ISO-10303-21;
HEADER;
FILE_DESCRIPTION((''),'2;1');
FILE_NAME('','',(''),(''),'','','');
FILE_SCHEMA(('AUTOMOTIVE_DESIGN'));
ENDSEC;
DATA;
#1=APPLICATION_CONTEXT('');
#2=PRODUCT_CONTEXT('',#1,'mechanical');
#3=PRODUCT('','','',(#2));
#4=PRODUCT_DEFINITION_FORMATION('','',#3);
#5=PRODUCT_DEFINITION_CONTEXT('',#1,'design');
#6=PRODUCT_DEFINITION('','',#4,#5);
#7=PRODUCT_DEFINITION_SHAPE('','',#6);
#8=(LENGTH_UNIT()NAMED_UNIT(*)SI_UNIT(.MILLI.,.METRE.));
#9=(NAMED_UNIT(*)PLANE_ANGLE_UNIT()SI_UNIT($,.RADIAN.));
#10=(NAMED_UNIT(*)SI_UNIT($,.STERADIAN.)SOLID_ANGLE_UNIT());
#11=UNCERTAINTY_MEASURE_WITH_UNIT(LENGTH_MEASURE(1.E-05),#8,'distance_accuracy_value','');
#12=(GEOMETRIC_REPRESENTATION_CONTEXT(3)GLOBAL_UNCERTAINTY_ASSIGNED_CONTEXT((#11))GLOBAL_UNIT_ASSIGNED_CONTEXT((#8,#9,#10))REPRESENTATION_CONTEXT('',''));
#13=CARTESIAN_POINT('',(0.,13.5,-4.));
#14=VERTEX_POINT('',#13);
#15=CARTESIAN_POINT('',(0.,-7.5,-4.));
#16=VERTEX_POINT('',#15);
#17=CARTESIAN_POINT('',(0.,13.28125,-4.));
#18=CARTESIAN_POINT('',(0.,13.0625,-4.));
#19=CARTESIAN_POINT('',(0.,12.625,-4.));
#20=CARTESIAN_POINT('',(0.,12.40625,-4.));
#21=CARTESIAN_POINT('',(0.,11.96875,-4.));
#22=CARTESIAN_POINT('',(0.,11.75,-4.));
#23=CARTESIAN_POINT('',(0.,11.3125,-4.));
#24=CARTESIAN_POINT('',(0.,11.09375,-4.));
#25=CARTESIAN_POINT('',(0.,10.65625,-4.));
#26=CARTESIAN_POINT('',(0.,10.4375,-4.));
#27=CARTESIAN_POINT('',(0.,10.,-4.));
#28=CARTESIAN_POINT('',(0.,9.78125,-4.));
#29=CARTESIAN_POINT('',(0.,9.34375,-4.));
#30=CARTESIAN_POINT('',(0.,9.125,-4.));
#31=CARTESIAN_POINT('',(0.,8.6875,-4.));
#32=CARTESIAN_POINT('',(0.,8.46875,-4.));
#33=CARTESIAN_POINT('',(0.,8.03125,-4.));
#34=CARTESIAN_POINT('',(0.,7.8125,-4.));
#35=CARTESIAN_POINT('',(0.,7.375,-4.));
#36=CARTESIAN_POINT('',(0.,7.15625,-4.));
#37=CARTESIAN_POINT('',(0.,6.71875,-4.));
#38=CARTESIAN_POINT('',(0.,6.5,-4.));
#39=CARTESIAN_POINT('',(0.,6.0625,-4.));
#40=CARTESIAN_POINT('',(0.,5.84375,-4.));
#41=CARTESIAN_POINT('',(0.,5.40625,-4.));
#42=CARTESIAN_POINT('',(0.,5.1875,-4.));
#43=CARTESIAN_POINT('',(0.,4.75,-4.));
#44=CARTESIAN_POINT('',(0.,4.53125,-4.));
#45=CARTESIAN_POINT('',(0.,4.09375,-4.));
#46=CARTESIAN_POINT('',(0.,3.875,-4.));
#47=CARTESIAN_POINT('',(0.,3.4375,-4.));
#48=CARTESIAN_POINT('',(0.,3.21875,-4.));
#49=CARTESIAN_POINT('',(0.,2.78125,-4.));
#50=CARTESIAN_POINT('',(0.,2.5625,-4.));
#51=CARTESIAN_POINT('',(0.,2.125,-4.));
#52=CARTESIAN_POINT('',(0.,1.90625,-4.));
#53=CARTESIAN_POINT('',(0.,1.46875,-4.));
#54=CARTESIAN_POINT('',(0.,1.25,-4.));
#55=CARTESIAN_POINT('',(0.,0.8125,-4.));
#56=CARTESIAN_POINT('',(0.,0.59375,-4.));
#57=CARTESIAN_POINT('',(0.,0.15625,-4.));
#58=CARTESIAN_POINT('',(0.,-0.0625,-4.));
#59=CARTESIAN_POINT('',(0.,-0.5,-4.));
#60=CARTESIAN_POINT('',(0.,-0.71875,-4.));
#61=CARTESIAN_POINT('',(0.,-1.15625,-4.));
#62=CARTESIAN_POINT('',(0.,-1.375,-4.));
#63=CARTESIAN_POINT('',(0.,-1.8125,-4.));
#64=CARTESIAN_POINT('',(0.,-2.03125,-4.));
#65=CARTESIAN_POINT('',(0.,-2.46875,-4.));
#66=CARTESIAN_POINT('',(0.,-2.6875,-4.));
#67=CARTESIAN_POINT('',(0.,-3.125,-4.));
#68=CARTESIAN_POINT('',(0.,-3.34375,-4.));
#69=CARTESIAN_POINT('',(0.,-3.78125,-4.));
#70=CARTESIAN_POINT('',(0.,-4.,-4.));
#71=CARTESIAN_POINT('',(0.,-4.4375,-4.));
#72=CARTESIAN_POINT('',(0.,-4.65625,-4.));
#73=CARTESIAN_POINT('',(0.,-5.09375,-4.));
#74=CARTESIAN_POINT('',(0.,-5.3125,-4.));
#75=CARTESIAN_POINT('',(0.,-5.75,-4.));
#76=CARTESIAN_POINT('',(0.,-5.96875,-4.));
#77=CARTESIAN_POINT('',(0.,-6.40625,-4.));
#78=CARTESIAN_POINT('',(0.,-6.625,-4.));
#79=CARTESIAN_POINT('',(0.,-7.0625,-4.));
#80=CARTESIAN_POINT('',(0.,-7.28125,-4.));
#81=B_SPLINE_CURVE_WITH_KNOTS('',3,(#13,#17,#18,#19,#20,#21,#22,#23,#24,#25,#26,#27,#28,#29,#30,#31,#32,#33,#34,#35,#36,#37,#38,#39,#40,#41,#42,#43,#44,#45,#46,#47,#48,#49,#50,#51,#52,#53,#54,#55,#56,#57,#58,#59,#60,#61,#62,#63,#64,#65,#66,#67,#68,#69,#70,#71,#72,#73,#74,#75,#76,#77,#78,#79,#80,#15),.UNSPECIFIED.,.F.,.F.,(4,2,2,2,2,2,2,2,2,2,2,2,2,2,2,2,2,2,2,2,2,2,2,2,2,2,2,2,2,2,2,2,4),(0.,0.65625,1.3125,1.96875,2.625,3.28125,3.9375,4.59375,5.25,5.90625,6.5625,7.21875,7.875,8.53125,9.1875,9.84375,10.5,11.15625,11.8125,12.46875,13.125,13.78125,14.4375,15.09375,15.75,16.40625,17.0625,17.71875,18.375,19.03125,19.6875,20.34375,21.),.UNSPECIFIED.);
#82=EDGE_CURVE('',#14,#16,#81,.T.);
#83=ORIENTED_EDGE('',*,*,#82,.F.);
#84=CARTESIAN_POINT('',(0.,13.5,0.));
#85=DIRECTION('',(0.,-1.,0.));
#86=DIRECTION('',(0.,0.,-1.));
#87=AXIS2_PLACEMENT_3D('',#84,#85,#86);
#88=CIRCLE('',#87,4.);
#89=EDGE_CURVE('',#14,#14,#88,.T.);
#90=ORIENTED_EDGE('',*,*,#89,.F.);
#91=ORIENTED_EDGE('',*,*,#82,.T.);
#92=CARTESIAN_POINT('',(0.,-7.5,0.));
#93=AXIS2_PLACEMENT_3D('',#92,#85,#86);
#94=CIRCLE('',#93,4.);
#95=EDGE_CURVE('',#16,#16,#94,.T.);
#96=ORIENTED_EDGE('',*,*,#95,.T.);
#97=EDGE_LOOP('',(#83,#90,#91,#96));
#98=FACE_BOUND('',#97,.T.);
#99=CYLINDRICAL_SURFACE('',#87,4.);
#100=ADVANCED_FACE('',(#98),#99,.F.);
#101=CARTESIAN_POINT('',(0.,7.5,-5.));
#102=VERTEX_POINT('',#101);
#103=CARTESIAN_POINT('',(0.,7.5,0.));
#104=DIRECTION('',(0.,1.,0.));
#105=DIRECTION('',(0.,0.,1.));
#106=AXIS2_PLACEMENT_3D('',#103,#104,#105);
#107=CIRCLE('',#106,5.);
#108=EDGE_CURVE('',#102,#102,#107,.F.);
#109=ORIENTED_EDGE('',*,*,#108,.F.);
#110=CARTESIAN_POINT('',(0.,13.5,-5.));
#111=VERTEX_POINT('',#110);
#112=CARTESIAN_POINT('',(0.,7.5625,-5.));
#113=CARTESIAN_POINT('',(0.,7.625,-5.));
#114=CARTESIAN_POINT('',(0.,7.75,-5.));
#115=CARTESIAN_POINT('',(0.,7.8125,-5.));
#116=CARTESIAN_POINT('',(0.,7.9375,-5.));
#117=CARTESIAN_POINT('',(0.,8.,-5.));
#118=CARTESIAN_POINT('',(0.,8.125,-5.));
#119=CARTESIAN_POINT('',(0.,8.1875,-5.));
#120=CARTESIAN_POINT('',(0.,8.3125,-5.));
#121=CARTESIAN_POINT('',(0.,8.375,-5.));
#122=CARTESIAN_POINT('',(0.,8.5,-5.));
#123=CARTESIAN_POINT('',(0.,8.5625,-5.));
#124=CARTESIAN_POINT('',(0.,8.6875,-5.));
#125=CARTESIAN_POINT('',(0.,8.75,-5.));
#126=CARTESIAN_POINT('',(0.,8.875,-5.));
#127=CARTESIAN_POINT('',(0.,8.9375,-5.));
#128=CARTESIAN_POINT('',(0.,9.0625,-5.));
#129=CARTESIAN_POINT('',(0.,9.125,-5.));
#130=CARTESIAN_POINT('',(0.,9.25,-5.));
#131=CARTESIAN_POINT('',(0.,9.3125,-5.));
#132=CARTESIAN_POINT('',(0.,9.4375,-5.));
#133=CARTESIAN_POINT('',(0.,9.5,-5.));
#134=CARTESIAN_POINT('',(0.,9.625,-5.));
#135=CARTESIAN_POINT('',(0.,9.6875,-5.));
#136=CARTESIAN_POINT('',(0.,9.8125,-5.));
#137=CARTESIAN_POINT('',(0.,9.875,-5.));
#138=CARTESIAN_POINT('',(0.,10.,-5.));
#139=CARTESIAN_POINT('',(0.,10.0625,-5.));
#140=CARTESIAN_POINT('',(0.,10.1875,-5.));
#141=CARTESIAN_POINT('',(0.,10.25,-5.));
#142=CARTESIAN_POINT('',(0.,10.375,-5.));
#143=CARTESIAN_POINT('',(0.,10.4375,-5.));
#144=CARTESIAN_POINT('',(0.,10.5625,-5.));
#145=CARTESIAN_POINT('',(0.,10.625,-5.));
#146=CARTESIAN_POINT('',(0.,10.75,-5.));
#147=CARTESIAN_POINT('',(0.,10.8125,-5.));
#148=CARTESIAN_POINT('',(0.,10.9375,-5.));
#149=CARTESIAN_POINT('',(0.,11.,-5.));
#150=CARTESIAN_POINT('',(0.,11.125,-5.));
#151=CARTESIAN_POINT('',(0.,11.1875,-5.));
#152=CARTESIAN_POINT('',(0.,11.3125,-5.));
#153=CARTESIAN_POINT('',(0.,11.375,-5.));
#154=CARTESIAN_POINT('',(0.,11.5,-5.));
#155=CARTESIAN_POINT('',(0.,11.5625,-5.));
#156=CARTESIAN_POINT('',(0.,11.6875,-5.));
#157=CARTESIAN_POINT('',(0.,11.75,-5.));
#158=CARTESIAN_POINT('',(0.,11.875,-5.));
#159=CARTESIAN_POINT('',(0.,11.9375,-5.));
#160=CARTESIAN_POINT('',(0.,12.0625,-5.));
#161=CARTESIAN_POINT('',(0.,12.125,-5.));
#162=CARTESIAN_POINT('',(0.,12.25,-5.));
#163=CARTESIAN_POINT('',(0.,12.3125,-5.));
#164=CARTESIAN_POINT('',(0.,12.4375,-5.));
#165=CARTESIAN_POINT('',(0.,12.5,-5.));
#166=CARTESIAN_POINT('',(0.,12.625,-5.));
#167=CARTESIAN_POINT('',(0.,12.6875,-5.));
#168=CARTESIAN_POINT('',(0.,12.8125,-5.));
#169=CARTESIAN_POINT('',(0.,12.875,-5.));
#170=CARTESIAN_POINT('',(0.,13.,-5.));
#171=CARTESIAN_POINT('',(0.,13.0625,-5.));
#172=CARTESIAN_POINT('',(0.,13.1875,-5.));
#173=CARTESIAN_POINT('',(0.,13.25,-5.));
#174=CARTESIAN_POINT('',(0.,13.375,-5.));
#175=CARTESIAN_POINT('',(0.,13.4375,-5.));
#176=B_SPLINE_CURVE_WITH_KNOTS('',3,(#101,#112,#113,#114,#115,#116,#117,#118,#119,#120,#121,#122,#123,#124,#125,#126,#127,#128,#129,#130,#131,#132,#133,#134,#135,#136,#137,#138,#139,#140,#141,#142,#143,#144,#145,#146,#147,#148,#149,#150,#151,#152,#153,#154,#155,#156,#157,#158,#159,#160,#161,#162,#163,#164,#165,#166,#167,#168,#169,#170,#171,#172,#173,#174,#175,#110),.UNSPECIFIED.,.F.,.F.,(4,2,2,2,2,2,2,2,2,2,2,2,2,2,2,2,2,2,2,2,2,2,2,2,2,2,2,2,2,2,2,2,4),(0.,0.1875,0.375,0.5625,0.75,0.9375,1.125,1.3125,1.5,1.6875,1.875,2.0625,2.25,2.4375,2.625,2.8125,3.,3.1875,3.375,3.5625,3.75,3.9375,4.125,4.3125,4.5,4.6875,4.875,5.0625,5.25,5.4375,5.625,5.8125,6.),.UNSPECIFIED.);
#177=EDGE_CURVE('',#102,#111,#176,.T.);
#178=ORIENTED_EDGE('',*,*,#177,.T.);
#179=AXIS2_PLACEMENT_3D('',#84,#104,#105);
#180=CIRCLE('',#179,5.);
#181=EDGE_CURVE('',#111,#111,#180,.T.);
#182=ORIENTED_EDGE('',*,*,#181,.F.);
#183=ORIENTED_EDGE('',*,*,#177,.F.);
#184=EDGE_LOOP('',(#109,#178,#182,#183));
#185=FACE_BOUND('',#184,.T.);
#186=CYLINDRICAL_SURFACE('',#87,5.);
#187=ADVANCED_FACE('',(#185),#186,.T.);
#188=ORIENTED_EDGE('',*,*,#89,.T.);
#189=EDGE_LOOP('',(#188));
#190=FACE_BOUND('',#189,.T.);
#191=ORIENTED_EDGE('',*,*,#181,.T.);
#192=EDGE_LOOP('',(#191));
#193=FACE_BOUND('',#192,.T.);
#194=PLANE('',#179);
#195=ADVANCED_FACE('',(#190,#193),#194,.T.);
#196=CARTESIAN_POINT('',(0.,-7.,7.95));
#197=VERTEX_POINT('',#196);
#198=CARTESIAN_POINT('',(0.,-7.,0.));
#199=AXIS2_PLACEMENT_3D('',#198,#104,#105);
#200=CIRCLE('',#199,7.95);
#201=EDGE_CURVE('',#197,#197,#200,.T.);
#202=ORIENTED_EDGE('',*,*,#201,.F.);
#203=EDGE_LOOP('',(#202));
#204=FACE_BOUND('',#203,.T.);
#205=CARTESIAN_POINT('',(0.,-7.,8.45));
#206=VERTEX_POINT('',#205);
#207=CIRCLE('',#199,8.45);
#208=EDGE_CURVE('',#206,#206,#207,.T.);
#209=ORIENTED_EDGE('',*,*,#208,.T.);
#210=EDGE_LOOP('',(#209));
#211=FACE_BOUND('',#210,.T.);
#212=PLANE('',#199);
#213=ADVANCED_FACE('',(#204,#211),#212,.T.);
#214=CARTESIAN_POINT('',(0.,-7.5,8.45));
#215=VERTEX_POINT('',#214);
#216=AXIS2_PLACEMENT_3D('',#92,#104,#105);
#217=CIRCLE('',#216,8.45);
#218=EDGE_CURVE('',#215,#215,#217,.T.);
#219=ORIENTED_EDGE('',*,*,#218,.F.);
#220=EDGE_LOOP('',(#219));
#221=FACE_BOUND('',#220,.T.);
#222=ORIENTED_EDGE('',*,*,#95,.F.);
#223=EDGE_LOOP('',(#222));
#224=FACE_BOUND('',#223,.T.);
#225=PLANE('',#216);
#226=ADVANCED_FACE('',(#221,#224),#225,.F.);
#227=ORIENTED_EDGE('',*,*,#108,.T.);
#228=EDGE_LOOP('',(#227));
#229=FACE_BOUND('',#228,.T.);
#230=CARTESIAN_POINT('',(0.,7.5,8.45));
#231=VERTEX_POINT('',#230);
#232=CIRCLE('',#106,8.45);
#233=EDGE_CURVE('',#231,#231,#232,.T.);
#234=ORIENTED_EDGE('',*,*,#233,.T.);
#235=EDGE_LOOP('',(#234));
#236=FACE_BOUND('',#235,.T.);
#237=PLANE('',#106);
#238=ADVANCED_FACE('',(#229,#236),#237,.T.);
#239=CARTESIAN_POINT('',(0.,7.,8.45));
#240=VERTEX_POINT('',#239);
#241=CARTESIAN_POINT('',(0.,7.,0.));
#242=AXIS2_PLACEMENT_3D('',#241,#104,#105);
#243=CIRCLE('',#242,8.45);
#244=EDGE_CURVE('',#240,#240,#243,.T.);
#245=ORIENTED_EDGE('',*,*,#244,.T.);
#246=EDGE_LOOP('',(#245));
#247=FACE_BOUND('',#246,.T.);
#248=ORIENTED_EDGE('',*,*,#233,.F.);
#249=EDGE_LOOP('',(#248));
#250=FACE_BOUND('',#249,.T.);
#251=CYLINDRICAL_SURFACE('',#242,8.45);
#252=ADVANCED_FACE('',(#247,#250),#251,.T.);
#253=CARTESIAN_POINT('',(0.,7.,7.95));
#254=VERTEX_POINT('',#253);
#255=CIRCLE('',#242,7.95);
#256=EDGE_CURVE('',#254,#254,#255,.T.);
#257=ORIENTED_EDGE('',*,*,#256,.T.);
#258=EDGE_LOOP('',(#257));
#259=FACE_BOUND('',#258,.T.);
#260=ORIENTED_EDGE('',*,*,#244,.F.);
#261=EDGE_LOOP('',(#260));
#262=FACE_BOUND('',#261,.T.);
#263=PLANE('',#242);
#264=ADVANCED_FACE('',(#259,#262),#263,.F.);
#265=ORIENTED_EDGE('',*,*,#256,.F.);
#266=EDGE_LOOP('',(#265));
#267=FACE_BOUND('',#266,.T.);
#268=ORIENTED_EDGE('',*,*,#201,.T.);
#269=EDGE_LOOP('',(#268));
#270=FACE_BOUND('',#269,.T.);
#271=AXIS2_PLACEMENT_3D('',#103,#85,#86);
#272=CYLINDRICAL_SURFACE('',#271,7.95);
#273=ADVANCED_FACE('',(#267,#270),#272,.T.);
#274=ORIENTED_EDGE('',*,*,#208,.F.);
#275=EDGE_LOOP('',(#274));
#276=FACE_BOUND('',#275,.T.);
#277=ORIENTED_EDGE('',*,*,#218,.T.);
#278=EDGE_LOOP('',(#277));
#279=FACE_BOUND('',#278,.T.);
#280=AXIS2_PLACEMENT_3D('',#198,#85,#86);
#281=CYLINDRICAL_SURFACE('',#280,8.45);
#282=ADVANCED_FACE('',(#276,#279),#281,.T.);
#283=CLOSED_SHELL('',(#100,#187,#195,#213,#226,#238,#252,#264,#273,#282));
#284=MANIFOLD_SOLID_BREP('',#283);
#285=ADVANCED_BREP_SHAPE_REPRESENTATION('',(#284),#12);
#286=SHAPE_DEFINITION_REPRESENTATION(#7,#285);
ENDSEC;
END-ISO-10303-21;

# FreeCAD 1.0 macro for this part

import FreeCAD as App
import Part
import Sketcher
Q = App.Units.Quantity

doc = App.newDocument("Part")
body = doc.addObject("PartDesign::Body", "Body")

sketch1 = body.newObject("Sketcher::SketchObject", "Sketch")
sketch1.AttachmentSupport = (doc.getObject("XZ_Plane"), [""])
sketch1.MapMode = "FlatFace"
sketch1.addGeometry(Part.Circle(App.Vector(0, 0, 0), App.Vector(0, 0, 1), 8), False)
sketch1.addConstraint([
    Sketcher.Constraint("Coincident", 0, 3, -1, 1),
    Sketcher.Constraint("Diameter", 0, Q("15.9 mm")),
])
pad1 = body.newObject("PartDesign::Pad", "Pad")
pad1.Profile = sketch1
pad1.Length = 15
pad1.Midplane = True

sketch2 = body.newObject("Sketcher::SketchObject", "Sketch001")
sketch2.AttachmentSupport = (doc.getObject("XZ_Plane"), [""])
sketch2.MapMode = "FlatFace"
sketch2.AttachmentOffset = App.Placement(App.Vector(0, 0, -7.5), App.Rotation())
sketch2.addGeometry(Part.Circle(App.Vector(0, 0, 0), App.Vector(0, 0, 1), 8), False)
sketch2.addConstraint([
    Sketcher.Constraint("Coincident", 0, 3, -1, 1),
    Sketcher.Constraint("Diameter", 0, Q("16.9 mm")),
])
pad2 = body.newObject("PartDesign::Pad", "Pad001")
pad2.Profile = sketch2
pad2.Length = 0.5

sketch3 = body.newObject("Sketcher::SketchObject", "Sketch002")
sketch3.AttachmentSupport = (doc.getObject("XZ_Plane"), [""])
sketch3.MapMode = "FlatFace"
sketch3.AttachmentOffset = App.Placement(App.Vector(0, 0, 7), App.Rotation())
sketch3.addGeometry(Part.Circle(App.Vector(0, 0, 0), App.Vector(0, 0, 1), 8), False)
sketch3.addConstraint([
    Sketcher.Constraint("Coincident", 0, 3, -1, 1),
    Sketcher.Constraint("Diameter", 0, Q("16.9 mm")),
])
pad3 = body.newObject("PartDesign::Pad", "Pad002")
pad3.Profile = sketch3
pad3.Length = 0.5

sketch4 = body.newObject("Sketcher::SketchObject", "Sketch003")
sketch4.AttachmentSupport = (doc.getObject("XZ_Plane"), [""])
sketch4.MapMode = "FlatFace"
sketch4.AttachmentOffset = App.Placement(App.Vector(0, 0, 7.5), App.Rotation())
sketch4.addGeometry(Part.Circle(App.Vector(0, 0, 0), App.Vector(0, 0, 1), 5), False)
sketch4.addConstraint([
    Sketcher.Constraint("Coincident", 0, 3, -1, 1),
    Sketcher.Constraint("Diameter", 0, Q("10 mm")),
])
pad4 = body.newObject("PartDesign::Pad", "Pad003")
pad4.Profile = sketch4
pad4.Length = 21
pad4.Reversed = True

sketch5 = body.newObject("Sketcher::SketchObject", "Sketch004")
sketch5.AttachmentSupport = (doc.getObject("XZ_Plane"), [""])
sketch5.MapMode = "FlatFace"
sketch5.AttachmentOffset = App.Placement(App.Vector(0, 0, 7), App.Rotation())
sketch5.addGeometry(Part.Circle(App.Vector(0, 0, 0), App.Vector(0, 0, 1), 3), False)
sketch5.addConstraint([
    Sketcher.Constraint("Coincident", 0, 3, -1, 1),
    Sketcher.Constraint("Diameter", 0, Q("6 mm")),
])
pocket1 = body.newObject("PartDesign::Pocket", "Pocket")
pocket1.Profile = sketch5
pocket1.Type = "ThroughAll"
pocket1.Midplane = True

sketch6 = body.newObject("Sketcher::SketchObject", "Sketch005")
sketch6.AttachmentSupport = (doc.getObject("XZ_Plane"), [""])
sketch6.MapMode = "FlatFace"
sketch6.AttachmentOffset = App.Placement(App.Vector(0, 0, 7.5), App.Rotation())
sketch6.addGeometry(Part.Circle(App.Vector(0, 0, 0), App.Vector(0, 0, 1), 4), False)
sketch6.addConstraint([
    Sketcher.Constraint("Coincident", 0, 3, -1, 1),
    Sketcher.Constraint("Diameter", 0, Q("8 mm")),
])
pocket2 = body.newObject("PartDesign::Pocket", "Pocket001")
pocket2.Profile = sketch6
pocket2.Type = "ThroughAll"

doc.recompute()
